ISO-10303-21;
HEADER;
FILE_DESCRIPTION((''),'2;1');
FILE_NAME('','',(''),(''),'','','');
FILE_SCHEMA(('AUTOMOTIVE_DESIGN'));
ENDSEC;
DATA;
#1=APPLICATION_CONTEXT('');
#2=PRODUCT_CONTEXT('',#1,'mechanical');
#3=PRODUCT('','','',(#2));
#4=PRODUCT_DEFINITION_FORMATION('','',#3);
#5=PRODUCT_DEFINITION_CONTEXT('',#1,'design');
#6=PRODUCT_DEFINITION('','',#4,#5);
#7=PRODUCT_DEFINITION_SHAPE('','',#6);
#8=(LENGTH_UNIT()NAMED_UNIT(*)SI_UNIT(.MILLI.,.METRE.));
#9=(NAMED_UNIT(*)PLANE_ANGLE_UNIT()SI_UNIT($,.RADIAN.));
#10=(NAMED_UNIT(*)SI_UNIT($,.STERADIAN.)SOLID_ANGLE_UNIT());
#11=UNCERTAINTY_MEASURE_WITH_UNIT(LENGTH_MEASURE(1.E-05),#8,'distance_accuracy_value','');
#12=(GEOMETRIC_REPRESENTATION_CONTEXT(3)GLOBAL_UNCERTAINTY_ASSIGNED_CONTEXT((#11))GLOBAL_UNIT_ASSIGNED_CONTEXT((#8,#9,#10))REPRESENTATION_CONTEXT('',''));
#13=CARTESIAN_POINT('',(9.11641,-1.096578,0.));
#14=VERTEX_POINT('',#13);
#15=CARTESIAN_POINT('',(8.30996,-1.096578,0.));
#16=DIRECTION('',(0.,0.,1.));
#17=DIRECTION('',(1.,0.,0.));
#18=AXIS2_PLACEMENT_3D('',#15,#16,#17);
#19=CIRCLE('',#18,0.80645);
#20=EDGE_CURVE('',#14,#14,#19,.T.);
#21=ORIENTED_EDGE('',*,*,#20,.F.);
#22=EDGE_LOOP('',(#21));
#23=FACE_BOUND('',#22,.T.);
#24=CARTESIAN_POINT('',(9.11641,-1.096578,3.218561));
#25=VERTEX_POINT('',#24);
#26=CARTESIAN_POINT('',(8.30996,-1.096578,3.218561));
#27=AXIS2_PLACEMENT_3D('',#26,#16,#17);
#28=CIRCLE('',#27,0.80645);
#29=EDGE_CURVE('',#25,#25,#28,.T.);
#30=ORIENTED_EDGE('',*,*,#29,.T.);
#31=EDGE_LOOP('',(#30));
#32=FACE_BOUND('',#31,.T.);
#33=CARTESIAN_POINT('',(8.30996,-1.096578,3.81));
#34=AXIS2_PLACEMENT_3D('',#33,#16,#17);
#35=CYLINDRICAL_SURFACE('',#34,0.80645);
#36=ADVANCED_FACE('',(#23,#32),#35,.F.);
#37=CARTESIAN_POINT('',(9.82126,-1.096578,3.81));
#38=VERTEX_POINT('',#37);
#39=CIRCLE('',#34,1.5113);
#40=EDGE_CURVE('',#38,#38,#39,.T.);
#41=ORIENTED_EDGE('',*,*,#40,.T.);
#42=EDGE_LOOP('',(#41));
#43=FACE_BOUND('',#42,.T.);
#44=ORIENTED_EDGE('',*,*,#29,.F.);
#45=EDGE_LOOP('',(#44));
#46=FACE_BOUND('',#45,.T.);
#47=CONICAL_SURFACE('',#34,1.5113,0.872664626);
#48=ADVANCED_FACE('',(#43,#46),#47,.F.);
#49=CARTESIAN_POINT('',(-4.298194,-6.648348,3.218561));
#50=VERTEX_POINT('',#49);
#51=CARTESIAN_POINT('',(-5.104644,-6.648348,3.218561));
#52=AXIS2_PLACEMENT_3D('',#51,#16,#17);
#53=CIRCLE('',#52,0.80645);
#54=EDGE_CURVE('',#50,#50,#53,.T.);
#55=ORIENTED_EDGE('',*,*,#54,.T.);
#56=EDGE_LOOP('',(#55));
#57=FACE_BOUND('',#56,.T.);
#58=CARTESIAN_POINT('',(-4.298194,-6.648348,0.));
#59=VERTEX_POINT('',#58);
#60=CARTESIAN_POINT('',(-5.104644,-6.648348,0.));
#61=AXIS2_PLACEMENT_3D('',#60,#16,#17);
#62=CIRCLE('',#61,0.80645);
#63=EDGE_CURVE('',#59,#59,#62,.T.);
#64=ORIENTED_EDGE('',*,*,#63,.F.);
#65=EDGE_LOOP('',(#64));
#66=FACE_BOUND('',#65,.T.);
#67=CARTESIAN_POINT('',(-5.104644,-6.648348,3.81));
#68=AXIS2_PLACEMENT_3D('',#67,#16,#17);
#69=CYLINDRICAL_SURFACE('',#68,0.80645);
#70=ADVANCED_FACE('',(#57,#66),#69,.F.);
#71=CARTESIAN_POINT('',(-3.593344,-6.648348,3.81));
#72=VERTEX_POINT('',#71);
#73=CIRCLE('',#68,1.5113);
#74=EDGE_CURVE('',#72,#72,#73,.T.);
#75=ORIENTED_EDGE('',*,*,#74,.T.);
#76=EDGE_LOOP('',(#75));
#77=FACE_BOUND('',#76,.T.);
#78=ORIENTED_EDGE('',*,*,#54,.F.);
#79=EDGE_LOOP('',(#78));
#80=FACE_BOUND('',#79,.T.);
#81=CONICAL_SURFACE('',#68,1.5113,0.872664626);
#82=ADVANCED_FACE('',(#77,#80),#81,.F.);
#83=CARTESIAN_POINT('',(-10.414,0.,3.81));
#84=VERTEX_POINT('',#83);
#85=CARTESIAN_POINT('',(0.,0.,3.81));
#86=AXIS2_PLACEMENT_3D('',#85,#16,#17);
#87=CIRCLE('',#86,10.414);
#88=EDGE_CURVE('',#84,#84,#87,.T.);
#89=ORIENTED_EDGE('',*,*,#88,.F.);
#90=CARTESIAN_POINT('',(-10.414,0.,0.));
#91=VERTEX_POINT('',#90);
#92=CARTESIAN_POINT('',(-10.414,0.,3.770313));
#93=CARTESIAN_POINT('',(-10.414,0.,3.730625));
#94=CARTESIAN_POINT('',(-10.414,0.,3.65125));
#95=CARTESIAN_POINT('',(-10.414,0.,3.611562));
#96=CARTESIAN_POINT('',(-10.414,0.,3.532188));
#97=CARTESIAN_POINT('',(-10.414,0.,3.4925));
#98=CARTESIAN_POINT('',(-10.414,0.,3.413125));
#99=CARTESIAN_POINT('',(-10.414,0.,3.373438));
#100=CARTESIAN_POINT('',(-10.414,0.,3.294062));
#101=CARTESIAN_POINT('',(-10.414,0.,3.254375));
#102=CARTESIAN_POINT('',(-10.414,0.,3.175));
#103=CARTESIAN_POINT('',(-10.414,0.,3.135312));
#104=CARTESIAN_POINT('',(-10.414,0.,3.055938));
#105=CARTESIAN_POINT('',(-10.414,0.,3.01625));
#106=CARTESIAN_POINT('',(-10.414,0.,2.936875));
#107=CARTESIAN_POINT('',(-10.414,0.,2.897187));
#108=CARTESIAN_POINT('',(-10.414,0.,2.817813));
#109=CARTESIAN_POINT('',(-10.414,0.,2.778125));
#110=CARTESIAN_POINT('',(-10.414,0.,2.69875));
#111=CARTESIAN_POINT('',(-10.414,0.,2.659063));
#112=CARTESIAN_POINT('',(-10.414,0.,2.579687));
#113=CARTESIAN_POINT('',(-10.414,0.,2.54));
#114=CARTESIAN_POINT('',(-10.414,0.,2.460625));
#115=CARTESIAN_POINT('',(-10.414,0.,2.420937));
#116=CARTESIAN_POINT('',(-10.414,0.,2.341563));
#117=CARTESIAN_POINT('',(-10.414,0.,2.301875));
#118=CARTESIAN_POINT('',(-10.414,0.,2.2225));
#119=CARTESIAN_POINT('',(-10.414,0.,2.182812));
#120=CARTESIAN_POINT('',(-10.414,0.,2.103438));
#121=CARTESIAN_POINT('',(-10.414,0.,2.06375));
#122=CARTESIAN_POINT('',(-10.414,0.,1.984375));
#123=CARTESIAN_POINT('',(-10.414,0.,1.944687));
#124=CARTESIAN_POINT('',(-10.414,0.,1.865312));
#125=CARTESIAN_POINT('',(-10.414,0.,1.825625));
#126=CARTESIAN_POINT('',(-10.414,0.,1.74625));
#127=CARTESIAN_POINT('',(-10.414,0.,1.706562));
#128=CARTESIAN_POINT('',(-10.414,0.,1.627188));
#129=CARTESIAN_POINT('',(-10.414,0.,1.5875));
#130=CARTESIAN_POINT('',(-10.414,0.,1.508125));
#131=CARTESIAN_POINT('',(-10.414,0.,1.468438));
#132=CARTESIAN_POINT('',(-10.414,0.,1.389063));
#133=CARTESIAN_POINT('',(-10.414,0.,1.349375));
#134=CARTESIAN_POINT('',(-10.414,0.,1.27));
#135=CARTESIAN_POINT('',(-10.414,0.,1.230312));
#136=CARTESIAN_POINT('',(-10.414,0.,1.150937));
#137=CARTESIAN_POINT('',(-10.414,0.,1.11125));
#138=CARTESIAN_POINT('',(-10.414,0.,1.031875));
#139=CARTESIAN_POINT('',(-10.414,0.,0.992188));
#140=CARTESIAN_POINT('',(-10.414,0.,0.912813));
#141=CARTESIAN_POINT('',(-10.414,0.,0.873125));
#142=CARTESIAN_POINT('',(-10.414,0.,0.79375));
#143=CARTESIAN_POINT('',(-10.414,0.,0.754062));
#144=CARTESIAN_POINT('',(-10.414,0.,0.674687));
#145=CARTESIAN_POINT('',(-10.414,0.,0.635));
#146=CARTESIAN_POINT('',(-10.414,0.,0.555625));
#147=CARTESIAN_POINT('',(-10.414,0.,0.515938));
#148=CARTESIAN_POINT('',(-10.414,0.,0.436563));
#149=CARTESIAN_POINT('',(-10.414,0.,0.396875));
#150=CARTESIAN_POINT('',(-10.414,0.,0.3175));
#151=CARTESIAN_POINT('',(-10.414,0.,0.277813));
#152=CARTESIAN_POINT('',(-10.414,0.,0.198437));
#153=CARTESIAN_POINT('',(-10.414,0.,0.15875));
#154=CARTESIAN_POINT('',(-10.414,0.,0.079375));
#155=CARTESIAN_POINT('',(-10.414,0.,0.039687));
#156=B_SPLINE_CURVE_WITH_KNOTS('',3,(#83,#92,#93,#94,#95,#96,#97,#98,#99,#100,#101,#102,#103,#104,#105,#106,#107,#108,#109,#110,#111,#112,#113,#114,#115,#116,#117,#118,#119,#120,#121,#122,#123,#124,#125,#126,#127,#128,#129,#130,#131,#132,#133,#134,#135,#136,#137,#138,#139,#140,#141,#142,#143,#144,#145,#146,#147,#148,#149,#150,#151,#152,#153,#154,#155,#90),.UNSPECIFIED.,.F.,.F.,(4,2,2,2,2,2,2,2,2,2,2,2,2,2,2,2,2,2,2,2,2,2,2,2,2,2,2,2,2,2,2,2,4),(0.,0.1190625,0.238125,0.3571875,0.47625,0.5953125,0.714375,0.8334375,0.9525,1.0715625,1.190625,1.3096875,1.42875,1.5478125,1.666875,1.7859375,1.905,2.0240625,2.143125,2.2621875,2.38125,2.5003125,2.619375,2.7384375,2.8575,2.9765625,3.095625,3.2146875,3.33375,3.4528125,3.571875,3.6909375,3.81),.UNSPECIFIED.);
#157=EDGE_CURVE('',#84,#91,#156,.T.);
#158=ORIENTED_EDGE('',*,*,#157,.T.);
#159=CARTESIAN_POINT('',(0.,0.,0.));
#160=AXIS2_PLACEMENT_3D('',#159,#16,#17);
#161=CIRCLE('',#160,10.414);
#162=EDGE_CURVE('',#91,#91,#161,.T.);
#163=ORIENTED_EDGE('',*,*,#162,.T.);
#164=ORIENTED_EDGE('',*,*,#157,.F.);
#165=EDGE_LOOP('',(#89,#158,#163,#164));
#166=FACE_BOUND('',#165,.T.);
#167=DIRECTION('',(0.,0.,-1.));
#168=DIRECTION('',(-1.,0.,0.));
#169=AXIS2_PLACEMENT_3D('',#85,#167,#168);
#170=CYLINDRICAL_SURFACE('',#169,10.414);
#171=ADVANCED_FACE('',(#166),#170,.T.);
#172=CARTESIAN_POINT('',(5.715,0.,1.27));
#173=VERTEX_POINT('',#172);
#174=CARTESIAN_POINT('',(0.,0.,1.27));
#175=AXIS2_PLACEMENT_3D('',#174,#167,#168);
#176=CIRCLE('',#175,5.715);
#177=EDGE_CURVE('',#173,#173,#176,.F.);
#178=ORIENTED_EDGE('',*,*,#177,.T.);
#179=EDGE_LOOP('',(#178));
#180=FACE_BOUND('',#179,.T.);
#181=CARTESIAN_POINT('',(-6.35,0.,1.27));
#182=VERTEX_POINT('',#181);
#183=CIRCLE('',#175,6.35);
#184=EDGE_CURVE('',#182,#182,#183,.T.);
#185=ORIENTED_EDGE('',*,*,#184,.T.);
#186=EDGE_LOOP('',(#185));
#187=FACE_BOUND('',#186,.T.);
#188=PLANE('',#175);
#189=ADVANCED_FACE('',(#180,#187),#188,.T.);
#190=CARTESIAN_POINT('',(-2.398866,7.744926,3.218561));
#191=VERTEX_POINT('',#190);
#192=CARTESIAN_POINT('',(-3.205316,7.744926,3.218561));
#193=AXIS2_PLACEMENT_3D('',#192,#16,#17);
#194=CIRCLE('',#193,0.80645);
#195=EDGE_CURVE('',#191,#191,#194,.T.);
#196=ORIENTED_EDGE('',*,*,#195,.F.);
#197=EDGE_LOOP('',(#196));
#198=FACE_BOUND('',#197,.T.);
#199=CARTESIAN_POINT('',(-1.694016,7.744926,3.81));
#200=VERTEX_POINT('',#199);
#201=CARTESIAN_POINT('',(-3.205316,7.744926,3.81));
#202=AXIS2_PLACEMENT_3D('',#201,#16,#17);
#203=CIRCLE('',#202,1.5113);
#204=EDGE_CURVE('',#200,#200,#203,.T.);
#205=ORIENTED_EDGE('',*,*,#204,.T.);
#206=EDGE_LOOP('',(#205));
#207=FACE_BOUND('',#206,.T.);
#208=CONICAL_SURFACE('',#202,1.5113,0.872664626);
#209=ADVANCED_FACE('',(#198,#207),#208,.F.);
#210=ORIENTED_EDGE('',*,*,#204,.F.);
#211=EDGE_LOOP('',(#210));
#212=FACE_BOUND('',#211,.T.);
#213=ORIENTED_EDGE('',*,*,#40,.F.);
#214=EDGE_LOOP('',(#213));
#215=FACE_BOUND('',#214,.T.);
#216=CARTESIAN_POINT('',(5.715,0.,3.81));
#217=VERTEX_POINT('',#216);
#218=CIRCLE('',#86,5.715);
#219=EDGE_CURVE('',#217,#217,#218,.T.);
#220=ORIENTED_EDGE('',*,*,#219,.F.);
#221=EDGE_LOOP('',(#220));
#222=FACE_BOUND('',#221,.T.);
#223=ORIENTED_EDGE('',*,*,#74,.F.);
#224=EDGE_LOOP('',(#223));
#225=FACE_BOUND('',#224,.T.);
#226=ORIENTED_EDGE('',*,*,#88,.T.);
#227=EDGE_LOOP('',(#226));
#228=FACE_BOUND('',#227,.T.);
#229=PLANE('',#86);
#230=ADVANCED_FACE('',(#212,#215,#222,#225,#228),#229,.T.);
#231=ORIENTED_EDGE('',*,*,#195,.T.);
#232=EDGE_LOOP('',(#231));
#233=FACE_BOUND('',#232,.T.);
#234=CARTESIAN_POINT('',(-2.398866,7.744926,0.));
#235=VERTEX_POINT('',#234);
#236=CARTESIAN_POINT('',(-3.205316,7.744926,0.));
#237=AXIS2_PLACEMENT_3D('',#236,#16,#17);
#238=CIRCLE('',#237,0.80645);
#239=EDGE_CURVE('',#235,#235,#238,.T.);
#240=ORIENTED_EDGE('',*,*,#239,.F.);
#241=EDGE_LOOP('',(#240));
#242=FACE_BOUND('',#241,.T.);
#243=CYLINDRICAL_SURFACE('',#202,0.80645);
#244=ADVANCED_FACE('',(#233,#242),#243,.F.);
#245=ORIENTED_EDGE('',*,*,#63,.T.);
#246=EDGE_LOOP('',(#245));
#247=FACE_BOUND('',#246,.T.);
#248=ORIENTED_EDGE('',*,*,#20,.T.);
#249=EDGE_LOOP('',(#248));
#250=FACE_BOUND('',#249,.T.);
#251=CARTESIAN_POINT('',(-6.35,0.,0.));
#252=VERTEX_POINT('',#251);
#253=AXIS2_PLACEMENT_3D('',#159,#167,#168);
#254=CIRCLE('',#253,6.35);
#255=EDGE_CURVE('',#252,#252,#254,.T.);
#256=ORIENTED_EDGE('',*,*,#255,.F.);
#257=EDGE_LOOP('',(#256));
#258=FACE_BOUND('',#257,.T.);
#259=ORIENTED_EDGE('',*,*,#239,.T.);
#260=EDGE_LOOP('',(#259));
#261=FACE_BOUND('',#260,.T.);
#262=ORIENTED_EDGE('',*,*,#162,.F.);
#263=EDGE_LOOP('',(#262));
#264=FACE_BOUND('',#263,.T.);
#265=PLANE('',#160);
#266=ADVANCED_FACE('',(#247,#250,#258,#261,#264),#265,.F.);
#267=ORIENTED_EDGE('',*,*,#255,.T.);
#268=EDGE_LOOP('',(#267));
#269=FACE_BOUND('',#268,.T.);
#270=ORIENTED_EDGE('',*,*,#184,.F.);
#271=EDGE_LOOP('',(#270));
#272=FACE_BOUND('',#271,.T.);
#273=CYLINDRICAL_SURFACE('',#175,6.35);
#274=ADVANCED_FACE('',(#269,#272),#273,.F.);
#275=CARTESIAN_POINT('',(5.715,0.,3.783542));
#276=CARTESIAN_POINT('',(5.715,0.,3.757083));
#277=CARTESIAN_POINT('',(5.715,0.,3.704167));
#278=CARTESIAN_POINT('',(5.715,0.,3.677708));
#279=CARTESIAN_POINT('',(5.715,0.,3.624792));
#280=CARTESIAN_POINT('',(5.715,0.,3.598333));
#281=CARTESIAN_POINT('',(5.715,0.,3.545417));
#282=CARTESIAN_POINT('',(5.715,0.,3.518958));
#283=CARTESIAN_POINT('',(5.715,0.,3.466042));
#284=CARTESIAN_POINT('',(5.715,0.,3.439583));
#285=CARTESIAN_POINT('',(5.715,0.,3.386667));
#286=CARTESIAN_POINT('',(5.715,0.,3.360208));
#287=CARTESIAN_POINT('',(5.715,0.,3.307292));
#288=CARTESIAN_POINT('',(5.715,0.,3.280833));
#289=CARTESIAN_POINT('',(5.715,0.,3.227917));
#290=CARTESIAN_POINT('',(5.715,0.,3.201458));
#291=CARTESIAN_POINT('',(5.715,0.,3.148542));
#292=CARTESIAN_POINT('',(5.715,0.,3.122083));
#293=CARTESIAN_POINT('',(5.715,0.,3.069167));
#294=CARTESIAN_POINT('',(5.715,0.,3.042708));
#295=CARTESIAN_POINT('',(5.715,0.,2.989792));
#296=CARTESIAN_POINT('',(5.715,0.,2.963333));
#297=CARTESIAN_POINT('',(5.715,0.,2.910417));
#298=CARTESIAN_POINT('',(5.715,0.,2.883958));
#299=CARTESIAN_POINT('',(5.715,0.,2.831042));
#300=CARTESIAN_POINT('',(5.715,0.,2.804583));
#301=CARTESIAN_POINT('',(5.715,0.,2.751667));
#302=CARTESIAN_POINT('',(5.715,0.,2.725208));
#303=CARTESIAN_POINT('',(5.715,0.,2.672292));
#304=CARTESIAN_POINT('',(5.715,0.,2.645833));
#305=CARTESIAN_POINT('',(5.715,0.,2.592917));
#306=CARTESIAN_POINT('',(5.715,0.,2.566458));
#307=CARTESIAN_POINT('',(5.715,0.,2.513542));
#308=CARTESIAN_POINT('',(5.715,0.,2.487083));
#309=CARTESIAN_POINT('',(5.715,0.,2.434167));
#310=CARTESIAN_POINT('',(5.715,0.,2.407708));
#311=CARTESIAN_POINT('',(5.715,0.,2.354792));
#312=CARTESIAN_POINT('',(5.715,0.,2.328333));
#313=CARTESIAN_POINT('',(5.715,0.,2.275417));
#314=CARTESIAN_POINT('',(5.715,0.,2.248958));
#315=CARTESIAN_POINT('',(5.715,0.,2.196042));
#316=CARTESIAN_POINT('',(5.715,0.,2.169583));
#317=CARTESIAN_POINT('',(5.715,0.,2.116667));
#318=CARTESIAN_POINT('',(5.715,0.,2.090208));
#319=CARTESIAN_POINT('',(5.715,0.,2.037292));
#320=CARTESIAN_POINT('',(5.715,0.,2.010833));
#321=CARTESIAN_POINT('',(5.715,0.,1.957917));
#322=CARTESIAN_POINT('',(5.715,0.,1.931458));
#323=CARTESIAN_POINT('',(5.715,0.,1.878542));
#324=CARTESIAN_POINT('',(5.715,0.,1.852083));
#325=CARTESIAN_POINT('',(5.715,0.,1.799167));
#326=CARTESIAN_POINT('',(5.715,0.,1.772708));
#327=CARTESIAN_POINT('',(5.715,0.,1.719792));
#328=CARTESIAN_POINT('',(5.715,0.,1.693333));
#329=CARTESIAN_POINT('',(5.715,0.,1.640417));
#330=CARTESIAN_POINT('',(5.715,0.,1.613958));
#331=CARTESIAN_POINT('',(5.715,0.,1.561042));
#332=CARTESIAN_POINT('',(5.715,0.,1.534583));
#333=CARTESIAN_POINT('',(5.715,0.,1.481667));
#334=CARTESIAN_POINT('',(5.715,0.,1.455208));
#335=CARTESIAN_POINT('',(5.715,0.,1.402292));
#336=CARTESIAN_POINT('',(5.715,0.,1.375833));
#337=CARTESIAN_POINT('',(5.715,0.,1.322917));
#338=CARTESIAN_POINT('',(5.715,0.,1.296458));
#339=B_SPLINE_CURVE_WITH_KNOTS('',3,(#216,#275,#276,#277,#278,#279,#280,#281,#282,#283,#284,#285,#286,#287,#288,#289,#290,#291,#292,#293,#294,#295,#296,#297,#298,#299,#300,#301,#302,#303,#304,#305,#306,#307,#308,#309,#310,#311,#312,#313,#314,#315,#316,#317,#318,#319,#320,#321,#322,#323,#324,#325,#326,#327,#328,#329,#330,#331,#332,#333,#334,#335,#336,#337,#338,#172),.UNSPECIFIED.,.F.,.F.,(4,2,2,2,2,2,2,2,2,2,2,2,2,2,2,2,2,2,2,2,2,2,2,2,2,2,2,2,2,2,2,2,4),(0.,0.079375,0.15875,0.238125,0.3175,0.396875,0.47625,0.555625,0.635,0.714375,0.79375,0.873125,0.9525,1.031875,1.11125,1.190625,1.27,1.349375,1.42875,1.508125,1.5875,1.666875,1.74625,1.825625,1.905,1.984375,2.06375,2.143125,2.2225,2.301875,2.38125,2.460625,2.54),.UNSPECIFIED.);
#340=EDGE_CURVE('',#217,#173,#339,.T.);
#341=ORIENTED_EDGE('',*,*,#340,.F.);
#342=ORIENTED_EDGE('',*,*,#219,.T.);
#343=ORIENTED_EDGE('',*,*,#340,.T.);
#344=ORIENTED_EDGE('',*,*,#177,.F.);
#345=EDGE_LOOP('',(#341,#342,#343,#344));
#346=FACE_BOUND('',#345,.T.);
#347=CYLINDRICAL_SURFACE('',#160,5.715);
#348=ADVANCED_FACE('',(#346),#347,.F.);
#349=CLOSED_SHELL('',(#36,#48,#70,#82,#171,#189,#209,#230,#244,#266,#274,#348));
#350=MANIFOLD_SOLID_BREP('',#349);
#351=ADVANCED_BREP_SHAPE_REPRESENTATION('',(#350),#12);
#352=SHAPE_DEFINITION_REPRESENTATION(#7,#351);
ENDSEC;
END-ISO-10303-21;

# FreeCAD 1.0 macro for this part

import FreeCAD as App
import Part
import Sketcher
Q = App.Units.Quantity

doc = App.newDocument("Part")
params = doc.addObject("Spreadsheet::Sheet", "Params")
for row, (alias, value) in enumerate([
    ("sketch1_diameter", "0.82 in"),
    ("pad1_length", "0.15 in"),
    ("sketch2_diameter", "0.45 in"),
    ("sketch3_diameter", "0.5 in"),
    ("pocket2_length", "0.05 in"),
    ("hole_diameter", "0.0635 in"),
    ("hole_csink_diameter", "0.119 in"),
], start=1):
    params.set(f"A{row}", alias)
    params.set(f"B{row}", "=" + value)
    params.setAlias(f"B{row}", alias)

body = doc.addObject("PartDesign::Body", "Body")

# Sketch on XY plane
sketch1 = body.newObject("Sketcher::SketchObject", "Sketch")
sketch1.AttachmentSupport = (doc.getObject("XY_Plane"), [""])
sketch1.MapMode = "FlatFace"
sketch1.addGeometry(Part.Circle(App.Vector(0, 0, 0), App.Vector(0, 0, 1), 10), False)
sketch1.addConstraint(Sketcher.Constraint("Coincident", 0, 3, -1, 1))
sketch1.addConstraint(Sketcher.Constraint("Diameter", 0, Q("0.82 in")))
sketch1.setExpression("Constraints[1]", "Params.sketch1_diameter")
pad1 = body.newObject("PartDesign::Pad", "Pad")
pad1.Profile = sketch1
pad1.setExpression("Length", "Params.pad1_length")

# Sketch on XY plane
sketch2 = body.newObject("Sketcher::SketchObject", "Sketch001")
sketch2.AttachmentSupport = (doc.getObject("XY_Plane"), [""])
sketch2.MapMode = "FlatFace"
sketch2.AttachmentOffset = App.Placement(App.Vector(0, 0, 0.15 * 25.4), App.Rotation())
sketch2.addGeometry(Part.Circle(App.Vector(0, 0, 0), App.Vector(0, 0, 1), 6), False)
sketch2.addConstraint(Sketcher.Constraint("Coincident", 0, 3, -1, 1))
sketch2.addConstraint(Sketcher.Constraint("Diameter", 0, Q("0.45 in")))
sketch2.setExpression("Constraints[1]", "Params.sketch2_diameter")
pocket1 = body.newObject("PartDesign::Pocket", "Pocket")
pocket1.Profile = sketch2
pocket1.Type = "ThroughAll"

# Sketch on XY plane
sketch3 = body.newObject("Sketcher::SketchObject", "Sketch002")
sketch3.AttachmentSupport = (doc.getObject("XY_Plane"), [""])
sketch3.MapMode = "FlatFace"
sketch3.addGeometry(Part.Circle(App.Vector(0, 0, 0), App.Vector(0, 0, 1), 6), False)
sketch3.addConstraint(Sketcher.Constraint("Coincident", 0, 3, -1, 1))
sketch3.addConstraint(Sketcher.Constraint("Diameter", 0, Q("0.5 in")))
sketch3.setExpression("Constraints[1]", "Params.sketch3_diameter")
pocket2 = body.newObject("PartDesign::Pocket", "Pocket001")
pocket2.Profile = sketch3
pocket2.setExpression("Length", "Params.pocket2_length")
pocket2.Reversed = True

# Sketch on XY plane
sketch4 = body.newObject("Sketcher::SketchObject", "Sketch003")
sketch4.AttachmentSupport = (doc.getObject("XY_Plane"), [""])
sketch4.MapMode = "FlatFace"
sketch4.AttachmentOffset = App.Placement(App.Vector(0, 0, 0.15 * 25.4), App.Rotation())
sketch4.addGeometry(Part.Circle(App.Vector(-5.1, -6.6, 0), App.Vector(0, 0, 1), 0.8), False)
sketch4.addConstraint(Sketcher.Constraint("Diameter", 0, Q("0.0635 in")))
sketch4.addConstraint(Sketcher.Constraint("DistanceX", 0, 3, -1, 1, 5.104644))
sketch4.addConstraint(Sketcher.Constraint("DistanceY", 0, 3, -1, 1, 6.648348))
doc.recompute()
hole = body.newObject("PartDesign::Hole", "Hole")
hole.Profile = sketch4
hole.ThreadType = "None"
hole.setExpression("Diameter", "Params.hole_diameter")
hole.DepthType = "ThroughAll"
hole.HoleCutType = "Countersink"
hole.setExpression("HoleCutDiameter", "Params.hole_csink_diameter")
hole.HoleCutCountersinkAngle = 100
doc.recompute()

polarpattern = body.newObject("PartDesign::PolarPattern", "PolarPattern")
polarpattern.Originals = [hole]
polarpattern.Axis = (doc.getObject("Z_Axis"), [""])
polarpattern.Angle = 360
polarpattern.Occurrences = 3
body.Tip = polarpattern

doc.recompute()
